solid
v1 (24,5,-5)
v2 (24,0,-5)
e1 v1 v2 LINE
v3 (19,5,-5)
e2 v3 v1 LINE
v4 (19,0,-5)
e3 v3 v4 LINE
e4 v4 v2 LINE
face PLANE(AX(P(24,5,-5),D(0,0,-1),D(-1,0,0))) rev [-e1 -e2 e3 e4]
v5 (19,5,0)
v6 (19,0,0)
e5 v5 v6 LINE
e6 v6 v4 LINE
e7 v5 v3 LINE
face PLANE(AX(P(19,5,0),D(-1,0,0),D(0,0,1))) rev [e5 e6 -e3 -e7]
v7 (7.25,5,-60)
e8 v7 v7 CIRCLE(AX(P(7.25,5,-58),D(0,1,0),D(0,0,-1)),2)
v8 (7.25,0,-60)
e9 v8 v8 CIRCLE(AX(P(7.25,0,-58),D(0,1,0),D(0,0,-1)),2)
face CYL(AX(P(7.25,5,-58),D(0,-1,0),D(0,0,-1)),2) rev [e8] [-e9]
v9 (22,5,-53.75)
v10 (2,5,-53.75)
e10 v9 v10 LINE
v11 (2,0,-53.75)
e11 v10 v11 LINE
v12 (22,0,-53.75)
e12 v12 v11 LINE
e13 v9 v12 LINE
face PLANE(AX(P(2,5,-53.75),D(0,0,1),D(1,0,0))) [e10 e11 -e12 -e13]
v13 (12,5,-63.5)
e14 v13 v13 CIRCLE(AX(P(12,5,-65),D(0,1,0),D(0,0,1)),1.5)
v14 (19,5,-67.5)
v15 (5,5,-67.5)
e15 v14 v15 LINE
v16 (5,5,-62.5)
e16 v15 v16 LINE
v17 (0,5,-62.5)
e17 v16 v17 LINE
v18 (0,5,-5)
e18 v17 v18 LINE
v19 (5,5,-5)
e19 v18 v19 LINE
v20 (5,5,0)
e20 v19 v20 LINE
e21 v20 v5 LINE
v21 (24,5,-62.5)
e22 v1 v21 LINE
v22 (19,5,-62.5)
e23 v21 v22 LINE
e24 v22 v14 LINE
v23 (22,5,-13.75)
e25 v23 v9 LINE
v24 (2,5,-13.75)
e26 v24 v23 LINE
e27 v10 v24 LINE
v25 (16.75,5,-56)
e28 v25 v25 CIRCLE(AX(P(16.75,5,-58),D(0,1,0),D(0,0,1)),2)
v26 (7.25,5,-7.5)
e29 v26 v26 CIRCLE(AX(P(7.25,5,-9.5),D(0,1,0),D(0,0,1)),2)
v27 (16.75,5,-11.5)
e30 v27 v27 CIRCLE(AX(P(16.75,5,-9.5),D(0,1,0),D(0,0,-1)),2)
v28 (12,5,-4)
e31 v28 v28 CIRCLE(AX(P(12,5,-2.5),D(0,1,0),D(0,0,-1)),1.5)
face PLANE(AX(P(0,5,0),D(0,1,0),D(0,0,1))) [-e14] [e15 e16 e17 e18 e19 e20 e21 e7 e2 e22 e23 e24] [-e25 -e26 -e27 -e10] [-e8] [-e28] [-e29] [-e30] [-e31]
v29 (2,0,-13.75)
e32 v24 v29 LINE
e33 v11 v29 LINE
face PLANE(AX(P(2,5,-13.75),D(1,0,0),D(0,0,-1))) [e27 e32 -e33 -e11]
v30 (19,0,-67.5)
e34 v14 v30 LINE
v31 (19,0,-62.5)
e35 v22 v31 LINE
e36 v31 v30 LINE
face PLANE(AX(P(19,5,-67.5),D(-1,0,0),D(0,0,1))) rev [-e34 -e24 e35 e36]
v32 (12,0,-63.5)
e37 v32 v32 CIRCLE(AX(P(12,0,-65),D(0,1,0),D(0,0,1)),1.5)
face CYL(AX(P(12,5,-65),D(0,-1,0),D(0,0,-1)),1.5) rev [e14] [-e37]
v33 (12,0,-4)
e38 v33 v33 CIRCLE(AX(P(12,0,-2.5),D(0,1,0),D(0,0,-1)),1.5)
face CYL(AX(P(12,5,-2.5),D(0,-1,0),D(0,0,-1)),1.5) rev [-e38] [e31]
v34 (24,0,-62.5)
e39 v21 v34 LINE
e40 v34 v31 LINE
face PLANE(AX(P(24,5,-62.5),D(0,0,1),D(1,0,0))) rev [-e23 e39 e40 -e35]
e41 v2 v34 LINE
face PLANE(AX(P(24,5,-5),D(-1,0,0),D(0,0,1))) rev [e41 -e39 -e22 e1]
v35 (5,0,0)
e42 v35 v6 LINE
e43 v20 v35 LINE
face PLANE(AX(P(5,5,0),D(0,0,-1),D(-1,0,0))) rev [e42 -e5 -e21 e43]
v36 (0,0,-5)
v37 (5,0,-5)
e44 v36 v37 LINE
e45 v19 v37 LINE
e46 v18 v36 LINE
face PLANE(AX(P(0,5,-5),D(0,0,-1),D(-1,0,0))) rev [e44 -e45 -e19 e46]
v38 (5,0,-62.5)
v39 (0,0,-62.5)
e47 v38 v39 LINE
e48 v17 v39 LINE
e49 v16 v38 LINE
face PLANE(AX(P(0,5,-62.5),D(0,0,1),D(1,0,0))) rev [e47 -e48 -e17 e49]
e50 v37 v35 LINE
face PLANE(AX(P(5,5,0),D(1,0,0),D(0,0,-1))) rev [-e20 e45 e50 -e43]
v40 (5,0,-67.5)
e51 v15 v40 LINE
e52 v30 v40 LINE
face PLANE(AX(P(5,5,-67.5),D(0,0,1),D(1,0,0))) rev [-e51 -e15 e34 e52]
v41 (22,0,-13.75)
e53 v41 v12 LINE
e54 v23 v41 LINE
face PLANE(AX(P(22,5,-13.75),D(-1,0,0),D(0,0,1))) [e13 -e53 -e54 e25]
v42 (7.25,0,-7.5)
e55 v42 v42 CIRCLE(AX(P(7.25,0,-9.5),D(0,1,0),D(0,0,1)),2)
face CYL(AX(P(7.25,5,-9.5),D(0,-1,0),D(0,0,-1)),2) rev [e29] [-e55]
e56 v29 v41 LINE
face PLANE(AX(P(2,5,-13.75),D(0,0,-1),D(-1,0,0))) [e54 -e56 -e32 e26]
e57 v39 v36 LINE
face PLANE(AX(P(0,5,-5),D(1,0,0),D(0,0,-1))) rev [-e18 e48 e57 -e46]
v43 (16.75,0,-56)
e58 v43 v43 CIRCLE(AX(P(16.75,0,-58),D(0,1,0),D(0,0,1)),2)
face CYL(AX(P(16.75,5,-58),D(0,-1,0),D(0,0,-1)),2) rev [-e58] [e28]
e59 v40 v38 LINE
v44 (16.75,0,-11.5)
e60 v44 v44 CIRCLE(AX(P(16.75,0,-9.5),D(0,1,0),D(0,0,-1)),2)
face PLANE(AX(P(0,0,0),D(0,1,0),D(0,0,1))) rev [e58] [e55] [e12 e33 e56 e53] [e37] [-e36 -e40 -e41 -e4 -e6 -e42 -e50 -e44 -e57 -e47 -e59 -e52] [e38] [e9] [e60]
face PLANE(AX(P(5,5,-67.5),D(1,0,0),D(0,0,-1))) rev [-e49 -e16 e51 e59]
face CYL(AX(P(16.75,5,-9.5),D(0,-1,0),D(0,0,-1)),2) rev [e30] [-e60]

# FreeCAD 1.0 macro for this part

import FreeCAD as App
import Part
import Sketcher
from FreeCAD import Vector


def add_polygon(sketch, points):
    """Adds a closed chain of lines whose ends are joined by coincident constraints."""
    first, n = sketch.GeometryCount, len(points)
    for a, b in zip(points, points[1:] + points[:1]):
        sketch.addGeometry(Part.LineSegment(App.Vector(*a, 0), App.Vector(*b, 0)), False)
    for i in range(n):
        sketch.addConstraint(Sketcher.Constraint("Coincident", first + i, 2, first + (i + 1) % n, 1))

doc = App.newDocument("Part")
body = doc.addObject("PartDesign::Body", "Body")

# Sketch on XZ plane
sketch1 = body.newObject("Sketcher::SketchObject", "Sketch")
sketch1.AttachmentSupport = (doc.getObject("XZ_Plane"), [""])
sketch1.MapMode = "FlatFace"
add_polygon(sketch1, [(5, 0), (19, 0), (19, -5), (24, -5), (24, -62.5), (19, -62.5), (19, -67.5), (5, -67.5), (5, -62.5), (0, -62.5), (0, -5), (5, -5)])  # lines 0-11
sketch1.addGeometry(Part.Circle(Vector(7.25, -9.5, 0), Vector(0, 0, 1), 2), False)  # 12
sketch1.addGeometry(Part.Circle(Vector(12, -2.5, 0), Vector(0, 0, 1), 1.5), False)  # 13
sketch1.addGeometry(Part.Circle(Vector(16.75, -9.5, 0), Vector(0, 0, 1), 2), False)  # 14
sketch1.addGeometry(Part.Circle(Vector(7.25, -58, 0), Vector(0, 0, 1), 2), False)  # 15
add_polygon(sketch1, [(22, -13.75), (2, -13.75), (2, -53.75), (22, -53.75)])  # lines 16-19
sketch1.addGeometry(Part.Circle(Vector(16.75, -58, 0), Vector(0, 0, 1), 2), False)  # 20
sketch1.addGeometry(Part.Circle(Vector(12, -65, 0), Vector(0, 0, 1), 1.5), False)  # 21
sketch1.addConstraint([
    Sketcher.Constraint("Horizontal", 0),
    Sketcher.Constraint("Vertical", 1),
    Sketcher.Constraint("Horizontal", 2),
    Sketcher.Constraint("Vertical", 3),
    Sketcher.Constraint("Horizontal", 4),
    Sketcher.Constraint("Vertical", 5),
    Sketcher.Constraint("Horizontal", 6),
    Sketcher.Constraint("Vertical", 7),
    Sketcher.Constraint("Horizontal", 8),
    Sketcher.Constraint("Vertical", 9),
    Sketcher.Constraint("Horizontal", 10),
    Sketcher.Constraint("Vertical", 11),
    Sketcher.Constraint("Horizontal", 16),
    Sketcher.Constraint("Vertical", 17),
    Sketcher.Constraint("Horizontal", 18),
    Sketcher.Constraint("Vertical", 19),
    Sketcher.Constraint("Equal", 12, 14),
    Sketcher.Constraint("Equal", 14, 15),
    Sketcher.Constraint("Equal", 15, 20),
    Sketcher.Constraint("Equal", 13, 21),
    Sketcher.Constraint("PointOnObject", 0, 2, -1),
    Sketcher.Constraint("PointOnObject", 8, 2, -2),
    Sketcher.Constraint("Horizontal", 12, 3, 14, 3),
    Sketcher.Constraint("Horizontal", 15, 3, 20, 3),
    Sketcher.Constraint("Horizontal", 4, 2, 7, 2),
    Sketcher.Constraint("Horizontal", 2, 2, 9, 2),
    Sketcher.Constraint("Vertical", 12, 3, 15, 3),
    Sketcher.Constraint("Vertical", 14, 3, 20, 3),
    Sketcher.Constraint("Vertical", 13, 3, 21, 3),
    Sketcher.Constraint("Vertical", 1, 2, 4, 2),
    Sketcher.Constraint("Vertical", 7, 2, 10, 2),
    Sketcher.Constraint("Equal", 4, 8),
    Sketcher.Constraint("Equal", 10, 1),
    Sketcher.Constraint("Equal", 1, 5),
    Sketcher.Constraint("Diameter", 12, 4.0),
    Sketcher.Constraint("Diameter", 13, 3.0),
    Sketcher.Constraint("DistanceX", 0, 1, 0, 2, 14.0),
    Sketcher.Constraint("DistanceX", 2, 1, 2, 2, 5.0),
    Sketcher.Constraint("DistanceX", 16, 2, 16, 1, 20.0),
    Sketcher.Constraint("DistanceY", 17, 2, 17, 1, 40.0),
    Sketcher.Constraint("DistanceY", 3, 2, 3, 1, 57.5),
    Sketcher.Constraint("DistanceX", -1, 1, 13, 3, 12.0),
    Sketcher.Constraint("DistanceY", 15, 3, -1, 1, 58.0),
    Sketcher.Constraint("DistanceY", 21, 3, -1, 1, 65.0),
    Sketcher.Constraint("DistanceX", -1, 1, 16, 2, 2.0),
    Sketcher.Constraint("DistanceY", 12, 3, 13, 3, 7.0),
    Sketcher.Constraint("DistanceY", 3, 2, 14, 3, 53.0),
    Sketcher.Constraint("DistanceX", 12, 3, 14, 3, 9.5),
    Sketcher.Constraint("DistanceX", -1, 1, 12, 3, 7.25),
    Sketcher.Constraint("DistanceY", 16, 2, -1, 1, 13.75),
])
pad1 = body.newObject("PartDesign::Pad", "Pad")
pad1.Profile = sketch1
pad1.Length = 5
pad1.Reversed = True

doc.recompute()
